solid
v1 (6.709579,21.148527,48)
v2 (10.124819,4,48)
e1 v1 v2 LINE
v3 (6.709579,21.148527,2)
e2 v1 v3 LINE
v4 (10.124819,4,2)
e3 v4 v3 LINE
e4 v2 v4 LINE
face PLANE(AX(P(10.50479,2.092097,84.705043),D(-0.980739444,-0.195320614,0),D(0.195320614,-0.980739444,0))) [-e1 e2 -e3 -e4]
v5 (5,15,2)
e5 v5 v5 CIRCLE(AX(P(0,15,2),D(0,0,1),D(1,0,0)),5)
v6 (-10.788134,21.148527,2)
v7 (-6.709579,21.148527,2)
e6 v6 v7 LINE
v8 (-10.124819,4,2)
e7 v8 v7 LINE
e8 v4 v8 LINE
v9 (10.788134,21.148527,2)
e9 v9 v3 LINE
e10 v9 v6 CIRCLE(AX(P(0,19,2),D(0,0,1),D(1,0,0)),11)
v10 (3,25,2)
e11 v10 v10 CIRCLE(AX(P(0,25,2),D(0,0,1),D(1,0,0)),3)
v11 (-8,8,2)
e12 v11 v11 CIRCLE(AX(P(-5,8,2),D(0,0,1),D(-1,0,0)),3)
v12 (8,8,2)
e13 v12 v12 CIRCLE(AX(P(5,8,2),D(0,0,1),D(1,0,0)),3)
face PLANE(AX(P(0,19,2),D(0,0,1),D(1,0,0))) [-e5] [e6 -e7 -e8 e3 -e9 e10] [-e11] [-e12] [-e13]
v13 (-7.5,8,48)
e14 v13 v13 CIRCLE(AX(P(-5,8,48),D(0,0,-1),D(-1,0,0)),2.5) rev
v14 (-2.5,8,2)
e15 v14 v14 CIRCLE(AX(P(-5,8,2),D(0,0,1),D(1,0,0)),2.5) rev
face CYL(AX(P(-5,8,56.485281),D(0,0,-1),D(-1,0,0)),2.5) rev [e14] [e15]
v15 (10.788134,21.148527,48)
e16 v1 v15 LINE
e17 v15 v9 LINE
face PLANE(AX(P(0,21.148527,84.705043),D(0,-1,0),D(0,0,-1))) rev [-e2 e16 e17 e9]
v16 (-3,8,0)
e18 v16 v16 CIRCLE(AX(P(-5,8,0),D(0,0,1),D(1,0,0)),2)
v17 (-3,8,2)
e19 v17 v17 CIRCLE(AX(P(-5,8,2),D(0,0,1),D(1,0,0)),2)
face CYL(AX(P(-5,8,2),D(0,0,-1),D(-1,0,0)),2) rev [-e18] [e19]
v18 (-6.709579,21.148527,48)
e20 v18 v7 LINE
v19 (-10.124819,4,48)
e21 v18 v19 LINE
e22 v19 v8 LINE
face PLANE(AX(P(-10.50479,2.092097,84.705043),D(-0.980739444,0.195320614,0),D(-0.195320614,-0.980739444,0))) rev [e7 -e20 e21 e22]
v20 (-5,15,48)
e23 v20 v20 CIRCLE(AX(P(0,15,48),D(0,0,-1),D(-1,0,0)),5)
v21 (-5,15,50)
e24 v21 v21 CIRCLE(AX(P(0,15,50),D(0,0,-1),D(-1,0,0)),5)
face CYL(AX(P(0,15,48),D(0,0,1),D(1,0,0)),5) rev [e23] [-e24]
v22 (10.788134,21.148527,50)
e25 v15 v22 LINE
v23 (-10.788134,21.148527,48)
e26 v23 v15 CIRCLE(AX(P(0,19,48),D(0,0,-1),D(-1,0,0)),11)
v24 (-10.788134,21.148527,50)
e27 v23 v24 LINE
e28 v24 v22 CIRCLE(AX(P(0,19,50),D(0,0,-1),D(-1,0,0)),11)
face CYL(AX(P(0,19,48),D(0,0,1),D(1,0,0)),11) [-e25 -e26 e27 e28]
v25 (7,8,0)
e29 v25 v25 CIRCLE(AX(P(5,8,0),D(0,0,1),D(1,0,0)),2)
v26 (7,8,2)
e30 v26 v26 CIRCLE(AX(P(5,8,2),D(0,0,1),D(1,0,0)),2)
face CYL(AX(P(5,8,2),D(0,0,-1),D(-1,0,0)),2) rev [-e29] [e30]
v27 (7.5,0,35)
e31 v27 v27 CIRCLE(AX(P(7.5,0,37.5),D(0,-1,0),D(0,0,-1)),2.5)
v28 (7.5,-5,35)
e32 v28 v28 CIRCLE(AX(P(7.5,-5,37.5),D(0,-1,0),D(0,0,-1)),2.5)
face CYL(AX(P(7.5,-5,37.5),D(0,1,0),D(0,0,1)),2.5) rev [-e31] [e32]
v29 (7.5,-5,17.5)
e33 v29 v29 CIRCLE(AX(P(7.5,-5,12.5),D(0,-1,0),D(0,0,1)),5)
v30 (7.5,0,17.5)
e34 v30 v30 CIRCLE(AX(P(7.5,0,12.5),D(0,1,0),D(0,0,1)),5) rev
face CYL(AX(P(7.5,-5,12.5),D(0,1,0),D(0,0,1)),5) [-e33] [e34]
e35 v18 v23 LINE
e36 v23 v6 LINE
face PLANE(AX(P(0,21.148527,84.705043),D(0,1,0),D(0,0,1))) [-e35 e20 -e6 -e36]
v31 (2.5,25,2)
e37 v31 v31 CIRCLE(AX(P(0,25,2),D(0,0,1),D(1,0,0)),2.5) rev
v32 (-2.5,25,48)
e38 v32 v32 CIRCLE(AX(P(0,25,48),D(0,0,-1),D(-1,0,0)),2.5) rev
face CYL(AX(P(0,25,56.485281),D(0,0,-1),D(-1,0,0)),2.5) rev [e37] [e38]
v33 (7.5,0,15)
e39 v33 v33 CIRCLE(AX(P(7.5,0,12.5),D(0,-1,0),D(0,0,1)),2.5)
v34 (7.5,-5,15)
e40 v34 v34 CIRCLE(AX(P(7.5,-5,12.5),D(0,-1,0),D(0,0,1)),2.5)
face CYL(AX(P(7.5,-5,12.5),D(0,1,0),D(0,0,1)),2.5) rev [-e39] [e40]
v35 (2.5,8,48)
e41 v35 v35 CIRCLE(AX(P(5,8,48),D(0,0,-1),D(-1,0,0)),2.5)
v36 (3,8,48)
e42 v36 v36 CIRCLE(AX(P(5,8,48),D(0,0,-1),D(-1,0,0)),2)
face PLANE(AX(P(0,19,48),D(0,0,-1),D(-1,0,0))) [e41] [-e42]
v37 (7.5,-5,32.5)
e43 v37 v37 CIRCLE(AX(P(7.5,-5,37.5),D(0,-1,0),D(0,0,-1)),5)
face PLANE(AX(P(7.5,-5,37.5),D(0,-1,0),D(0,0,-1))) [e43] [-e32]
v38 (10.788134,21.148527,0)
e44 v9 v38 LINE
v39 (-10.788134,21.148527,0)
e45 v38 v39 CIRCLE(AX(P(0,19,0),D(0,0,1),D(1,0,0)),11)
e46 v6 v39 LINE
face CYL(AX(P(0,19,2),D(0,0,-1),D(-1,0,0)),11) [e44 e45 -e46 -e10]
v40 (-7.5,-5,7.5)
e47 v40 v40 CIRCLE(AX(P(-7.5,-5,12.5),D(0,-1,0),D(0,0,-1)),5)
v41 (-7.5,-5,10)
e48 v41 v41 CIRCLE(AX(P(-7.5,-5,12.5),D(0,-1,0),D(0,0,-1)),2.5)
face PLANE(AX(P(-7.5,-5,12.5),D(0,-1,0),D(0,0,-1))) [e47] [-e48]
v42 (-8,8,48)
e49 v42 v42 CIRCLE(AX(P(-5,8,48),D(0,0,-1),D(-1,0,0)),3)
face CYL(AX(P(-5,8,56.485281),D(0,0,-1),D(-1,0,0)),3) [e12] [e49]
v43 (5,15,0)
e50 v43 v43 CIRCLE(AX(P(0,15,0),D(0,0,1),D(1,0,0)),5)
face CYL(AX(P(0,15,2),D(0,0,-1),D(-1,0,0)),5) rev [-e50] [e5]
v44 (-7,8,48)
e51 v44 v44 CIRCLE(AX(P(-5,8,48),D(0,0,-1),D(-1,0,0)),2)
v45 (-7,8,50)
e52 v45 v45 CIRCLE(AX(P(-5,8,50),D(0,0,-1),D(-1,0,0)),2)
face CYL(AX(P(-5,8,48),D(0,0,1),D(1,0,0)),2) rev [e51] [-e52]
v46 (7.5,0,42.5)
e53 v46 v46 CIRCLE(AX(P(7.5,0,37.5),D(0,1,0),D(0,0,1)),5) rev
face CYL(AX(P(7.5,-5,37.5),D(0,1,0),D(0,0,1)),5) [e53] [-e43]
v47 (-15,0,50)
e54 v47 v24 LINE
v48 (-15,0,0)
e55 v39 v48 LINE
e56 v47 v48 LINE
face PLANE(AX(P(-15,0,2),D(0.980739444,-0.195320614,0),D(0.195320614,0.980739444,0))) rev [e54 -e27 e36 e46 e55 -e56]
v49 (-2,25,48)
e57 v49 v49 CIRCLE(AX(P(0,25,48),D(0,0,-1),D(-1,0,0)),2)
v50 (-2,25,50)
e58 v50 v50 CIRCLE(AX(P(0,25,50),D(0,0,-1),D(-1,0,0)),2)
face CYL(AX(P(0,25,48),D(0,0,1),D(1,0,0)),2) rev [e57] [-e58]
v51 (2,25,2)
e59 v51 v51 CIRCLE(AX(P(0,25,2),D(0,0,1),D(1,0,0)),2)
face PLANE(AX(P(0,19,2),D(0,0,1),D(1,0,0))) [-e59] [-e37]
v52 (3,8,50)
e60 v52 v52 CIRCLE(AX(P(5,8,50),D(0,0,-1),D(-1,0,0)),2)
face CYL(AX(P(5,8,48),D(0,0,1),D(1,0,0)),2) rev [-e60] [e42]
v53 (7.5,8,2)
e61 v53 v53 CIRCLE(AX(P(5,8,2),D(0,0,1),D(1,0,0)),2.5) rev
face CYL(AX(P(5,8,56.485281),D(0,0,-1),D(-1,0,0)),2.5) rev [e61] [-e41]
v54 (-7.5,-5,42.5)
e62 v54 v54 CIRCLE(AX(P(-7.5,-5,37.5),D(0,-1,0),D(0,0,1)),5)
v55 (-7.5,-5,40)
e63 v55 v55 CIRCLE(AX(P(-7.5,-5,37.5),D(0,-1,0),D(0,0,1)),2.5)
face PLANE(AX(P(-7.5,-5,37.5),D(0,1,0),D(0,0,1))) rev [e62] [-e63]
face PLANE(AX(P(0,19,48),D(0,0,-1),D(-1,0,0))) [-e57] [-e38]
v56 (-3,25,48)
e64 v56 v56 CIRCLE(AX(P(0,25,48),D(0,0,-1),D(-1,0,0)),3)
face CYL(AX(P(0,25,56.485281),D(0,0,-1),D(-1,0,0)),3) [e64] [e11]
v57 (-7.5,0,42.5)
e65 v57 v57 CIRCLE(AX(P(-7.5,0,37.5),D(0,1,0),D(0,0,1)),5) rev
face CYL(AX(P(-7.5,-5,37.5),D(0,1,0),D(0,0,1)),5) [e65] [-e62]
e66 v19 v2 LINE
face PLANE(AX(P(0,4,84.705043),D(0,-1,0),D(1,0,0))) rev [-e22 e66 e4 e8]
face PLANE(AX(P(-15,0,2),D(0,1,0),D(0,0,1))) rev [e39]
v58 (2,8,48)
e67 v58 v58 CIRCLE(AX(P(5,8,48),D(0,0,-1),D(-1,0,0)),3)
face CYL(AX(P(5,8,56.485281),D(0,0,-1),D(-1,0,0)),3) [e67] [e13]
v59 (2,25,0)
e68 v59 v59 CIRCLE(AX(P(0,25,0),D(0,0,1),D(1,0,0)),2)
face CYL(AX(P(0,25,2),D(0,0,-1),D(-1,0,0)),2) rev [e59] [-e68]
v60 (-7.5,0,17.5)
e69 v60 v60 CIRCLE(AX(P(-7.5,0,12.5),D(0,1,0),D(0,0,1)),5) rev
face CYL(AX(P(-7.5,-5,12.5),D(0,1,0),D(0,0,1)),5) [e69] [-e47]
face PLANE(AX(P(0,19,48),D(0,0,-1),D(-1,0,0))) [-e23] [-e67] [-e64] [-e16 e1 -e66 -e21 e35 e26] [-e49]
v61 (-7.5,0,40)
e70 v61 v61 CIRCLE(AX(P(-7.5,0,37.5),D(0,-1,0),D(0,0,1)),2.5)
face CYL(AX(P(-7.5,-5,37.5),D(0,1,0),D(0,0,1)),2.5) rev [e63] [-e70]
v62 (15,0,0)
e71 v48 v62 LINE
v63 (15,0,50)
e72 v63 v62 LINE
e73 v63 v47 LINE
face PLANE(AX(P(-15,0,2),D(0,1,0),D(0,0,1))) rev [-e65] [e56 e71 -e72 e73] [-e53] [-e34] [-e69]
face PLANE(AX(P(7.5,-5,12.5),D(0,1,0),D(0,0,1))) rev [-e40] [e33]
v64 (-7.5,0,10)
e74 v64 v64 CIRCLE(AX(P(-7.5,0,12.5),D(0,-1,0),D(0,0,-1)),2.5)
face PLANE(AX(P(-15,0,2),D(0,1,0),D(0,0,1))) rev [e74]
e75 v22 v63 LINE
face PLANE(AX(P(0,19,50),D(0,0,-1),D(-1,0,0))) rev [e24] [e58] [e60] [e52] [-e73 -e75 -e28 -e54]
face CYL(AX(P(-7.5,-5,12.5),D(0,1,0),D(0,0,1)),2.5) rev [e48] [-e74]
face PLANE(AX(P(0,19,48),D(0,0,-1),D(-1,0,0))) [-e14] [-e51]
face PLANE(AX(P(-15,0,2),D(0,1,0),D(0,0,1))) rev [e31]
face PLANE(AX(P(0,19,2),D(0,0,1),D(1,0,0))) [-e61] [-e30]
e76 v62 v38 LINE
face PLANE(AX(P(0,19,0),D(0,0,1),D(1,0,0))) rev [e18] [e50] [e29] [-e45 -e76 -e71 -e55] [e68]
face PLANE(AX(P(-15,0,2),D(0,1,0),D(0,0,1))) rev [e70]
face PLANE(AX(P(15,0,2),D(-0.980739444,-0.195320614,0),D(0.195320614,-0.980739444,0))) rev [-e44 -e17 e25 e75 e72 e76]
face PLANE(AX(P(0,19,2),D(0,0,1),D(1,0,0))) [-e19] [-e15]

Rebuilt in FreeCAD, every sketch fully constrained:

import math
import FreeCAD as App
import Part
import Sketcher
Q = App.Units.Quantity


def add_polygon(sketch, points):
    """Adds a closed chain of lines whose ends are joined by coincident constraints."""
    first, n = sketch.GeometryCount, len(points)
    for a, b in zip(points, points[1:] + points[:1]):
        sketch.addGeometry(Part.LineSegment(App.Vector(*a, 0), App.Vector(*b, 0)), False)
    for i in range(n):
        sketch.addConstraint(Sketcher.Constraint("Coincident", first + i, 2, first + (i + 1) % n, 1))

doc = App.newDocument("Part")
body = doc.addObject("PartDesign::Body", "Body")

# Sketch on XY plane
sketch1 = body.newObject("Sketcher::SketchObject", "Sketch")
sketch1.AttachmentSupport = (doc.getObject("XY_Plane"), [""])
sketch1.MapMode = "FlatFace"
sketch1.addGeometry([
    Part.LineSegment(App.Vector(-15, 0, 0), App.Vector(15, 0, 0)),  # 0
    Part.LineSegment(App.Vector(15, 0, 0), App.Vector(10.8, 21.1, 0)),  # 1
    Part.ArcOfCircle(Part.Circle(App.Vector(0, 19, 0), App.Vector(0, 0, 1), 11), math.radians(11), math.radians(169)),  # 2
    Part.LineSegment(App.Vector(-10.8, 21.1, 0), App.Vector(-15, 0, 0)),  # 3
    Part.Circle(App.Vector(-5, 8, 0), App.Vector(0, 0, 1), 2),  # 4
    Part.Circle(App.Vector(5, 8, 0), App.Vector(0, 0, 1), 2),  # 5
    Part.Circle(App.Vector(0, 15, 0), App.Vector(0, 0, 1), 5),  # 6
    Part.Circle(App.Vector(0, 25, 0), App.Vector(0, 0, 1), 2),  # 7
], False)
sketch1.addConstraint([
    Sketcher.Constraint("Coincident", 0, 2, 1, 1),
    Sketcher.Constraint("Tangent", 1, 2, 2, 1),
    Sketcher.Constraint("Tangent", 2, 2, 3, 1),
    Sketcher.Constraint("Coincident", 3, 2, 0, 1),
    Sketcher.Constraint("Horizontal", 0),
    Sketcher.Constraint("Equal", 4, 5),
    Sketcher.Constraint("Equal", 5, 7),
    Sketcher.Constraint("Symmetric", 0, 2, 3, 2, -1, 1),
    Sketcher.Constraint("Symmetric", 4, 3, 5, 3, -2),
    Sketcher.Constraint("PointOnObject", 2, 3, -2),
    Sketcher.Constraint("PointOnObject", 6, 3, -2),
    Sketcher.Constraint("PointOnObject", 7, 3, -2),
    Sketcher.Constraint("Diameter", 4, Q("4 mm")),
    Sketcher.Constraint("Diameter", 6, Q("10 mm")),
    Sketcher.Constraint("Radius", 2, Q("11 mm")),
    Sketcher.Constraint("DistanceX", 0, 1, 0, 2, Q("30 mm")),
    Sketcher.Constraint("DistanceY", -1, 1, 2, 3, Q("19 mm")),
    Sketcher.Constraint("DistanceX", 4, 3, -1, 1, Q("5 mm")),
    Sketcher.Constraint("DistanceY", -1, 1, 4, 3, Q("8 mm")),
    Sketcher.Constraint("DistanceY", -1, 1, 6, 3, Q("15 mm")),
    Sketcher.Constraint("DistanceY", -1, 1, 7, 3, Q("25 mm")),
])
pad1 = body.newObject("PartDesign::Pad", "Pad")
pad1.Profile = sketch1
pad1.Length = 2
body2 = doc.addObject("PartDesign::Body", "Body001")

# Sketch on XY plane
sketch2 = body2.newObject("Sketcher::SketchObject", "Sketch001")
sketch2.AttachmentSupport = (doc.getObject("XY_Plane001"), [""])
sketch2.MapMode = "FlatFace"
sketch2.AttachmentOffset = App.Placement(App.Vector(0, 0, 50), App.Rotation())
sketch2.addGeometry([
    Part.LineSegment(App.Vector(10.8, 21.1, 0), App.Vector(15, 0, 0)),  # 0
    Part.LineSegment(App.Vector(15, 0, 0), App.Vector(-15, 0, 0)),  # 1
    Part.LineSegment(App.Vector(-15, 0, 0), App.Vector(-10.8, 21.1, 0)),  # 2
    Part.ArcOfCircle(Part.Circle(App.Vector(0, 19, 0), App.Vector(0, 0, 1), 11), math.radians(11), math.radians(169)),  # 3
    Part.Circle(App.Vector(5, 8, 0), App.Vector(0, 0, 1), 2),  # 4
    Part.Circle(App.Vector(-5, 8, 0), App.Vector(0, 0, 1), 2),  # 5
    Part.Circle(App.Vector(0, 15, 0), App.Vector(0, 0, 1), 5),  # 6
    Part.Circle(App.Vector(0, 25, 0), App.Vector(0, 0, 1), 2),  # 7
], False)
sketch2.addConstraint([
    Sketcher.Constraint("Coincident", 0, 2, 1, 1),
    Sketcher.Constraint("Coincident", 1, 2, 2, 1),
    Sketcher.Constraint("Tangent", 2, 2, 3, 2),
    Sketcher.Constraint("Tangent", 3, 1, 0, 1),
    Sketcher.Constraint("Horizontal", 1),
    Sketcher.Constraint("Equal", 4, 5),
    Sketcher.Constraint("Equal", 5, 7),
    Sketcher.Constraint("Symmetric", 0, 2, 1, 2, -1, 1),
    Sketcher.Constraint("Symmetric", 4, 3, 5, 3, -2),
    Sketcher.Constraint("PointOnObject", 3, 3, -2),
    Sketcher.Constraint("PointOnObject", 6, 3, -2),
    Sketcher.Constraint("PointOnObject", 7, 3, -2),
    Sketcher.Constraint("Diameter", 4, Q("4 mm")),
    Sketcher.Constraint("Diameter", 6, Q("10 mm")),
    Sketcher.Constraint("Radius", 3, Q("11 mm")),
    Sketcher.Constraint("DistanceX", 1, 2, 1, 1, Q("30 mm")),
    Sketcher.Constraint("DistanceY", -1, 1, 3, 3, Q("19 mm")),
    Sketcher.Constraint("DistanceX", -1, 1, 4, 3, Q("5 mm")),
    Sketcher.Constraint("DistanceY", -1, 1, 4, 3, Q("8 mm")),
    Sketcher.Constraint("DistanceY", -1, 1, 6, 3, Q("15 mm")),
    Sketcher.Constraint("DistanceY", -1, 1, 7, 3, Q("25 mm")),
])
pad2 = body2.newObject("PartDesign::Pad", "Pad001")
pad2.Profile = sketch2
pad2.Length = 2
pad2.Reversed = True
body.AllowCompound = True
doc.recompute()

boolean = body.newObject("PartDesign::Boolean", "Boolean")
boolean.Type = "Fuse"
boolean.addObjects([body2])

# Sketch on XY plane
sketch3 = body.newObject("Sketcher::SketchObject", "Sketch002")
sketch3.AttachmentSupport = (doc.getObject("XY_Plane"), [""])
sketch3.MapMode = "FlatFace"
sketch3.AttachmentOffset = App.Placement(App.Vector(0, 0, 2), App.Rotation())
sketch3.addGeometry([
    Part.Circle(App.Vector(5, 8, 0), App.Vector(0, 0, 1), 3),  # 0
    Part.Circle(App.Vector(5, 8, 0), App.Vector(0, 0, 1), 2.5),  # 1
    Part.Circle(App.Vector(0, 25, 0), App.Vector(0, 0, 1), 3),  # 2
    Part.Circle(App.Vector(0, 25, 0), App.Vector(0, 0, 1), 2.5),  # 3
    Part.Circle(App.Vector(-5, 8, 0), App.Vector(0, 0, 1), 3),  # 4
    Part.Circle(App.Vector(-5, 8, 0), App.Vector(0, 0, 1), 2.5),  # 5
], False)
sketch3.addConstraint([
    Sketcher.Constraint("Coincident", 1, 3, 0, 3),
    Sketcher.Constraint("Coincident", 3, 3, 2, 3),
    Sketcher.Constraint("Coincident", 5, 3, 4, 3),
    Sketcher.Constraint("Equal", 0, 2),
    Sketcher.Constraint("Equal", 1, 3),
    Sketcher.Constraint("Equal", 2, 4),
    Sketcher.Constraint("Equal", 3, 5),
    Sketcher.Constraint("Symmetric", 0, 3, 4, 3, -2),
    Sketcher.Constraint("PointOnObject", 2, 3, -2),
    Sketcher.Constraint("Diameter", 0, Q("6 mm")),
    Sketcher.Constraint("Diameter", 1, Q("5 mm")),
    Sketcher.Constraint("DistanceX", -1, 1, 0, 3, Q("5 mm")),
    Sketcher.Constraint("DistanceY", -1, 1, 0, 3, Q("8 mm")),
    Sketcher.Constraint("DistanceY", -1, 1, 2, 3, Q("25 mm")),
])
pad3 = body.newObject("PartDesign::Pad", "Pad002")
pad3.Profile = sketch3
pad3.Length = 46

# Sketch on XY plane
sketch4 = body.newObject("Sketcher::SketchObject", "Sketch003")
sketch4.AttachmentSupport = (doc.getObject("XY_Plane"), [""])
sketch4.MapMode = "FlatFace"
sketch4.AttachmentOffset = App.Placement(App.Vector(0, 0, 2), App.Rotation())
add_polygon(sketch4, [(-10.8, 21.1), (-14.2, 4), (-15, 0), (15, 0), (14.2, 4), (10.8, 21.1), (6.7, 21.1), (10.1, 4), (-10.1, 4), (-6.7, 21.1)])  # lines 0-9
sketch4.addConstraint([
    Sketcher.Constraint("Horizontal", 2),
    Sketcher.Constraint("Horizontal", 5),
    Sketcher.Constraint("Horizontal", 7),
    Sketcher.Constraint("Horizontal", 9),
    Sketcher.Constraint("Symmetric", 1, 2, 2, 2, -1, 1),
    Sketcher.Constraint("Symmetric", 0, 2, 3, 2, -2),
    Sketcher.Constraint("Symmetric", 5, 2, 8, 2, -2),
    Sketcher.Constraint("Parallel", 0, 1),
    Sketcher.Constraint("Parallel", 3, 4),
    Sketcher.Constraint("Parallel", 4, 6),
    Sketcher.Constraint("Parallel", 1, 8),
    Sketcher.Constraint("Horizontal", 3, 2, 6, 2),
    Sketcher.Constraint("DistanceX", 2, 1, 2, 2, Q("30 mm")),
    Sketcher.Constraint("DistanceY", -1, 1, 0, 2, Q("4 mm")),
    Sketcher.Constraint("DistanceX", 5, 2, 5, 1, Q("4.078555 mm")),
    Sketcher.Constraint("DistanceX", 7, 2, 7, 1, Q("20.249638 mm")),
    Sketcher.Constraint("DistanceX", -1, 1, 5, 2, Q("6.709579 mm")),
])
pad4 = body.newObject("PartDesign::Pad", "Pad003")
pad4.Profile = sketch4
pad4.Length = 46

# Sketch on XZ plane
sketch5 = body.newObject("Sketcher::SketchObject", "Sketch004")
sketch5.AttachmentSupport = (doc.getObject("XZ_Plane"), [""])
sketch5.MapMode = "FlatFace"
sketch5.addGeometry([
    Part.Circle(App.Vector(7.5, 37.5, 0), App.Vector(0, 0, 1), 5),  # 0
    Part.Circle(App.Vector(7.5, 37.5, 0), App.Vector(0, 0, 1), 2.5),  # 1
    Part.Circle(App.Vector(7.5, 12.5, 0), App.Vector(0, 0, 1), 5),  # 2
    Part.Circle(App.Vector(7.5, 12.5, 0), App.Vector(0, 0, 1), 2.5),  # 3
    Part.Circle(App.Vector(-7.5, 12.5, 0), App.Vector(0, 0, 1), 5),  # 4
    Part.Circle(App.Vector(-7.5, 12.5, 0), App.Vector(0, 0, 1), 2.5),  # 5
    Part.Circle(App.Vector(-7.5, 37.5, 0), App.Vector(0, 0, 1), 5),  # 6
    Part.Circle(App.Vector(-7.5, 37.5, 0), App.Vector(0, 0, 1), 2.5),  # 7
], False)
sketch5.addConstraint([
    Sketcher.Constraint("Coincident", 1, 3, 0, 3),
    Sketcher.Constraint("Coincident", 3, 3, 2, 3),
    Sketcher.Constraint("Coincident", 5, 3, 4, 3),
    Sketcher.Constraint("Coincident", 7, 3, 6, 3),
    Sketcher.Constraint("Equal", 0, 2),
    Sketcher.Constraint("Equal", 1, 3),
    Sketcher.Constraint("Equal", 2, 4),
    Sketcher.Constraint("Equal", 3, 5),
    Sketcher.Constraint("Equal", 4, 6),
    Sketcher.Constraint("Equal", 5, 7),
    Sketcher.Constraint("Symmetric", 2, 3, 4, 3, -2),
    Sketcher.Constraint("Symmetric", 0, 3, 6, 3, -2),
    Sketcher.Constraint("Vertical", 1, 3, 2, 3),
    Sketcher.Constraint("Diameter", 0, Q("10 mm")),
    Sketcher.Constraint("Diameter", 1, Q("5 mm")),
    Sketcher.Constraint("DistanceY", 2, 3, 0, 3, Q("25 mm")),
    Sketcher.Constraint("DistanceX", 4, 3, 2, 3, Q("15 mm")),
    Sketcher.Constraint("DistanceY", -1, 1, 0, 3, Q("37.5 mm")),
])
pad5 = body.newObject("PartDesign::Pad", "Pad004")
pad5.Profile = sketch5
pad5.Length = 5

doc.recompute()
